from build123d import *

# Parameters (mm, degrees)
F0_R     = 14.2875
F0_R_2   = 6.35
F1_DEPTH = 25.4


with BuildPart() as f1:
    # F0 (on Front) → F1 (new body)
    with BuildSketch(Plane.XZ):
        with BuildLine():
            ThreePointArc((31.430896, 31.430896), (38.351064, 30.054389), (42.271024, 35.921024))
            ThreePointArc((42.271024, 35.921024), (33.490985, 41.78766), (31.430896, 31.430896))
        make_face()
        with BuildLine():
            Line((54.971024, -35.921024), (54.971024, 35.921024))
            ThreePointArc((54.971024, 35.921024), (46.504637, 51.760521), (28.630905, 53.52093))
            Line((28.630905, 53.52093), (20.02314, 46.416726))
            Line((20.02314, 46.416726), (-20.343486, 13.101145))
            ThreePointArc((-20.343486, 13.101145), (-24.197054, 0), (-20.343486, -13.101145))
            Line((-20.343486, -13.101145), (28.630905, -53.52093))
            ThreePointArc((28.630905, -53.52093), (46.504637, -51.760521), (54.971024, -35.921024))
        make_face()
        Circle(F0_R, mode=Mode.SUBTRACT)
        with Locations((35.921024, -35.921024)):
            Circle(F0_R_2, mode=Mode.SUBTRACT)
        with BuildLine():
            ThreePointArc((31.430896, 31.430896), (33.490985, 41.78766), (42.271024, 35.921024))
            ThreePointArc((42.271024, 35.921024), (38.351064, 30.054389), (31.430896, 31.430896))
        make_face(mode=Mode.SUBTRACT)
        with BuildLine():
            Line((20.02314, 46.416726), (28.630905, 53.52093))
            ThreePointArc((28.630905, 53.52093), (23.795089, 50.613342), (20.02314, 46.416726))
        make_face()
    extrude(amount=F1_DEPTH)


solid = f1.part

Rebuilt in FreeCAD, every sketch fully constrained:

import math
import FreeCAD as App
import Part
import Sketcher

V = App.Vector
Q = App.Units.Quantity

doc = App.newDocument("Part")
params = doc.addObject("Spreadsheet::Sheet", "Params")
for row, (alias, value) in enumerate([
    ("sketch1_diameter", "0.5 in"),
    ("sketch1_radius", "0.75 in"),
    ("sketch1_diameter2", "1.125 in"),
    ("sketch1_length", "2.5 in"),
    ("pad1_length", "1 in"),
], start=1):
    params.set(f"A{row}", alias)
    params.set(f"B{row}", "=" + value)
    params.setAlias(f"B{row}", alias)

body = doc.addObject("PartDesign::Body", "Body")

sketch1 = body.newObject("Sketcher::SketchObject", "Sketch")
sketch1.AttachmentSupport = (doc.getObject("XZ_Plane"), [""])
sketch1.MapMode = "FlatFace"
sketch1.addGeometry([
    Part.LineSegment(V(54.971024, -35.921024, 0), V(54.971024, 35.921024, 0)),
    Part.ArcOfCircle(Part.Circle(V(35.921024, 35.921025, 0), V(0, 0, 1), 19.05), math.radians(-0.000003), math.radians(112.5)),
    Part.ArcOfCircle(Part.Circle(V(35.921023, 35.921028, 0), V(0, 0, 1), 19.049996), math.radians(112.500001), math.radians(146.567421)),
    Part.LineSegment(V(20.02314, 46.416726, 0), V(-20.343486, 13.101145, 0)),
    Part.ArcOfCircle(Part.Circle(V(0, 0, 0), V(0, 0, 1), 24.197054), math.radians(147.218584), math.radians(212.781416)),
    Part.LineSegment(V(-20.343486, -13.101145, 0), V(28.630905, -53.52093, 0)),
    Part.ArcOfCircle(Part.Circle(V(35.921024, -35.921025, 0), V(0, 0, 1), 19.05), math.radians(-112.5), math.radians(0.000003)),
    Part.Circle(V(0, 0, 0), V(0, 0, 1), 14.2875),
    Part.Circle(V(35.921024, -35.921024, 0), V(0, 0, 1), 6.35),
    Part.ArcOfCircle(Part.Circle(V(35.921024, 35.921024, 0), V(0, 0, 1), 6.35), math.radians(-135.000001), math.radians(0.000001)),
    Part.ArcOfCircle(Part.Circle(V(35.921024, 35.921024, 0), V(0, 0, 1), 6.35), math.radians(-0.000004), math.radians(225.000004)),
], False)
sketch1.addConstraint([
    Sketcher.Constraint("Tangent", 0, 2, 1, 1),
    Sketcher.Constraint("Tangent", 1, 2, 2, 1),
    Sketcher.Constraint("Coincident", 2, 2, 3, 1),
    Sketcher.Constraint("Coincident", 3, 2, 4, 1),
    Sketcher.Constraint("Coincident", 4, 2, 5, 1),
    Sketcher.Constraint("Coincident", 5, 2, 6, 1),
    Sketcher.Constraint("Tangent", 6, 2, 0, 1),
    Sketcher.Constraint("Tangent", 9, 1, 10, 2),
    Sketcher.Constraint("Coincident", 10, 1, 9, 2),
    Sketcher.Constraint("Vertical", 0),
    Sketcher.Constraint("Coincident", 4, 3, -1, 1),
    Sketcher.Constraint("Coincident", 7, 3, -1, 1),
    Sketcher.Constraint("Coincident", 8, 3, 6, 3),
    Sketcher.Constraint("Coincident", 9, 3, 1, 3),
    Sketcher.Constraint("Equal", 1, 6),
    Sketcher.Constraint("Equal", 8, 9),
    Sketcher.Constraint("Symmetric", 1, 2, 5, 2, -1),
    Sketcher.Constraint("Horizontal", 0, 2, 10, 1),
    Sketcher.Constraint("Vertical", 2, 3, 6, 3),
    Sketcher.Constraint("Vertical", 3, 2, 4, 2),
    Sketcher.Constraint("Diameter", 8, Q("0.5 in")),
    Sketcher.Constraint("Radius", 1, Q("0.75 in")),
    Sketcher.Constraint("Diameter", 7, Q("1.125 in")),
    Sketcher.Constraint("Distance", 5, Q("2.5 in")),
    Sketcher.Constraint("Radius", 4, 24.197054),
    Sketcher.Constraint("DistanceY", 0, 1, 0, 2, 71.842048),
    Sketcher.Constraint("DistanceY", 2, 3, 1, 2, 17.599902),
    Sketcher.Constraint("DistanceY", 1, 3, 2, 2, 10.495701),
    Sketcher.Constraint("DistanceX", -1, 1, 2, 2, 20.02314),
    Sketcher.Constraint("DistanceX", 9, 1, 9, 3, 4.490128),
])
sketch1.setExpression("Constraints[20]", "Params.sketch1_diameter")
sketch1.setExpression("Constraints[21]", "Params.sketch1_radius")
sketch1.setExpression("Constraints[22]", "Params.sketch1_diameter2")
sketch1.setExpression("Constraints[23]", "Params.sketch1_length")
pad1 = body.newObject("PartDesign::Pad", "Pad")
pad1.Profile = sketch1
pad1.setExpression("Length", "Params.pad1_length")

doc.recompute()
